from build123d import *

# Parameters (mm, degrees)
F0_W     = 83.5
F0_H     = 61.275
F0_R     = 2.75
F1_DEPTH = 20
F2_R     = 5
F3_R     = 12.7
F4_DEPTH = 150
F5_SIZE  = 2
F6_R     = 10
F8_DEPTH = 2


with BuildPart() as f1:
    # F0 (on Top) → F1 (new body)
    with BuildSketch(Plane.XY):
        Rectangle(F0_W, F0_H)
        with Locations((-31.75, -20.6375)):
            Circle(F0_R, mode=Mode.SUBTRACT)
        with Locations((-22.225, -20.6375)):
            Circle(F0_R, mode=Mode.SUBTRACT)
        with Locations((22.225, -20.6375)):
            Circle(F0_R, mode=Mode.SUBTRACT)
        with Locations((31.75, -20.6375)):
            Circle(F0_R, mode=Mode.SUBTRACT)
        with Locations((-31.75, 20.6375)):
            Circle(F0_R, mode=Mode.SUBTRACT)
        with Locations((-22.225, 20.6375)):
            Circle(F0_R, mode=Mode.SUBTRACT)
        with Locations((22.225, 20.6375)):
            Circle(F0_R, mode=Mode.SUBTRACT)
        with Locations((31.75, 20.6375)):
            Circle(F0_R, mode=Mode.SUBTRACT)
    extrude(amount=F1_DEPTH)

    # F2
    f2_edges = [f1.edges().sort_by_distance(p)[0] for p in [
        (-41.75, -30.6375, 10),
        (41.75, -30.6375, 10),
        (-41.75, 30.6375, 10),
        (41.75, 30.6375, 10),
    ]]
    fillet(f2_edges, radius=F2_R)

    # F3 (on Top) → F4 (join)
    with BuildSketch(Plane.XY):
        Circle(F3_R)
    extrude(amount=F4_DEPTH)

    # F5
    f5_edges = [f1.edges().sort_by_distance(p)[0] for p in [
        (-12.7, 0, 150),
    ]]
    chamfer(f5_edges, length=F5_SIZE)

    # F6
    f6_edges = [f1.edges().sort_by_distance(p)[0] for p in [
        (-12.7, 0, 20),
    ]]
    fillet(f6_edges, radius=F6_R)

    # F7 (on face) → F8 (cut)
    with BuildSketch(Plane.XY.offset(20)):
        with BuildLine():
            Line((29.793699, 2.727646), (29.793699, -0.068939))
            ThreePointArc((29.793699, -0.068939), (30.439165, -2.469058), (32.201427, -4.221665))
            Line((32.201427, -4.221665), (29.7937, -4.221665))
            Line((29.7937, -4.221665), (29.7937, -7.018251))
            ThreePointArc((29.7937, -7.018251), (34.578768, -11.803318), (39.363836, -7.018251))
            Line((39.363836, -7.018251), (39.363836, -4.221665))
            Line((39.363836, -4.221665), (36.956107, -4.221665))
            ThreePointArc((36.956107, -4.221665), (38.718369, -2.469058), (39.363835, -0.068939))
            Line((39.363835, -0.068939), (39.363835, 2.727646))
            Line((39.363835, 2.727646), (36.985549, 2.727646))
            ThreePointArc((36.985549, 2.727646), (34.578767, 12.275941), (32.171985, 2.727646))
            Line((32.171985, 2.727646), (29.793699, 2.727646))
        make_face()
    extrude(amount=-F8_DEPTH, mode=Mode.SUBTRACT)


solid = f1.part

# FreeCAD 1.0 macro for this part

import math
import FreeCAD as App
import Part
import Sketcher

V = App.Vector


def edges_at(feature, points):
    """Names of the edges that pass closest to the given points."""
    edges = feature.Shape.Edges
    near = lambda p: min(range(len(edges)), key=lambda i: edges[i].distToShape(Part.Vertex(*p))[0])
    return sorted({f"Edge{near(p) + 1}" for p in points})

doc = App.newDocument("Part")
body = doc.addObject("PartDesign::Body", "Body")

# Sketch on XY plane
sketch1 = doc.addObject("Sketcher::SketchObject", "Sketch")
body.addObject(sketch1)
sketch1.AttachmentSupport = (doc.XY_Plane, [""])
sketch1.MapMode = "FlatFace"
sketch1.addGeometry([
    Part.LineSegment(V(-41.75, 30.6375, 0), V(-41.75, -30.6375, 0)),  # 0
    Part.LineSegment(V(-41.75, -30.6375, 0), V(41.75, -30.6375, 0)),  # 1
    Part.LineSegment(V(41.75, -30.6375, 0), V(41.75, 30.6375, 0)),  # 2
    Part.LineSegment(V(41.75, 30.6375, 0), V(-41.75, 30.6375, 0)),  # 3
    Part.Circle(V(-31.75, -20.6375, 0), V(0, 0, 1), 2.75),  # 4
    Part.Circle(V(-22.225, -20.6375, 0), V(0, 0, 1), 2.75),  # 5
    Part.Circle(V(22.225, -20.6375, 0), V(0, 0, 1), 2.75),  # 6
    Part.Circle(V(31.75, -20.6375, 0), V(0, 0, 1), 2.75),  # 7
    Part.Circle(V(-31.75, 20.6375, 0), V(0, 0, 1), 2.75),  # 8
    Part.Circle(V(-22.225, 20.6375, 0), V(0, 0, 1), 2.75),  # 9
    Part.Circle(V(22.225, 20.6375, 0), V(0, 0, 1), 2.75),  # 10
    Part.Circle(V(31.75, 20.6375, 0), V(0, 0, 1), 2.75),  # 11
], False)
sketch1.addConstraint([
    Sketcher.Constraint("Coincident", 0, 2, 1, 1),
    Sketcher.Constraint("Coincident", 1, 2, 2, 1),
    Sketcher.Constraint("Coincident", 2, 2, 3, 1),
    Sketcher.Constraint("Coincident", 3, 2, 0, 1),
    Sketcher.Constraint("Vertical", 0),
    Sketcher.Constraint("Horizontal", 1),
    Sketcher.Constraint("Vertical", 2),
    Sketcher.Constraint("Horizontal", 3),
    Sketcher.Constraint("Equal", 4, 5),
    Sketcher.Constraint("Equal", 5, 6),
    Sketcher.Constraint("Equal", 6, 7),
    Sketcher.Constraint("Equal", 7, 8),
    Sketcher.Constraint("Equal", 8, 9),
    Sketcher.Constraint("Equal", 9, 10),
    Sketcher.Constraint("Equal", 10, 11),
    Sketcher.Constraint("Symmetric", 7, 3, 8, 3, -1, 1),
    Sketcher.Constraint("Symmetric", 6, 3, 9, 3, -1, 1),
    Sketcher.Constraint("Symmetric", 5, 3, 10, 3, -1, 1),
    Sketcher.Constraint("Symmetric", 4, 3, 11, 3, -1, 1),
    Sketcher.Constraint("Symmetric", 0, 2, 2, 2, -1, 1),
    Sketcher.Constraint("Symmetric", 5, 3, 6, 3, -2),
    Sketcher.Constraint("Symmetric", 4, 3, 7, 3, -2),
    Sketcher.Constraint("Horizontal", 4, 3, 5, 3),
    Sketcher.Constraint("Diameter", 4, 5.5),
    Sketcher.Constraint("DistanceX", 1, 1, 1, 2, 83.5),
    Sketcher.Constraint("DistanceX", 0, 2, 4, 3, 10.0),
    Sketcher.Constraint("DistanceY", 0, 2, 4, 3, 10.0),
    Sketcher.Constraint("DistanceY", 0, 2, 0, 1, 61.275),
    Sketcher.Constraint("DistanceX", 5, 3, 6, 3, 44.45),
])
pad1 = doc.addObject("PartDesign::Pad", "Pad")
body.addObject(pad1)
pad1.Profile = sketch1
pad1.Length = 20
doc.recompute()

fillet = doc.addObject("PartDesign::Fillet", "Fillet")
body.addObject(fillet)
fillet.Base = (pad1, edges_at(pad1, [
    (-41.75, -30.637, 10),
    (41.75, -30.637, 10),
    (-41.75, 30.637, 10),
    (41.75, 30.637, 10),
]))
fillet.Radius = 5

# Sketch on XY plane
sketch2 = doc.addObject("Sketcher::SketchObject", "Sketch001")
body.addObject(sketch2)
sketch2.AttachmentSupport = (doc.XY_Plane, [""])
sketch2.MapMode = "FlatFace"
sketch2.addGeometry(Part.Circle(V(0, 0, 0), V(0, 0, 1), 12.7), False)
sketch2.addConstraint([
    Sketcher.Constraint("Coincident", 0, 3, -1, 1),
    Sketcher.Constraint("Diameter", 0, 25.4),
])
pad2 = doc.addObject("PartDesign::Pad", "Pad001")
body.addObject(pad2)
pad2.Profile = sketch2
pad2.Length = 150
doc.recompute()

chamfer = doc.addObject("PartDesign::Chamfer", "Chamfer")
body.addObject(chamfer)
chamfer.Base = (pad2, edges_at(pad2, [(-12.7, 0, 150)]))
chamfer.Size = 2
doc.recompute()

fillet2 = doc.addObject("PartDesign::Fillet", "Fillet001")
body.addObject(fillet2)
fillet2.Base = (chamfer, edges_at(chamfer, [(-12.7, 0, 20)]))
fillet2.Radius = 10

# Sketch on XY plane
sketch3 = doc.addObject("Sketcher::SketchObject", "Sketch002")
body.addObject(sketch3)
sketch3.AttachmentSupport = (doc.XY_Plane, [""])
sketch3.MapMode = "FlatFace"
sketch3.AttachmentOffset = App.Placement(V(0, 0, 20), App.Rotation())
sketch3.addGeometry([
    Part.LineSegment(V(29.793699, 2.727646, 0), V(29.793699, -0.068939, 0)),  # 0
    Part.ArcOfCircle(Part.Circle(V(34.578768, -0.068939, 0), V(0, 0, 1), 4.785069), math.radians(-179.999997), math.radians(-119.790153)),  # 1
    Part.LineSegment(V(32.201427, -4.221665, 0), V(29.7937, -4.221665, 0)),  # 2
    Part.LineSegment(V(29.7937, -4.221665, 0), V(29.7937, -7.018251, 0)),  # 3
    Part.ArcOfCircle(Part.Circle(V(34.578768, -7.01825, 0), V(0, 0, 1), 4.785068), math.radians(-179.999988), math.radians(-0.000012)),  # 4
    Part.LineSegment(V(39.363836, -7.018251, 0), V(39.363836, -4.221665, 0)),  # 5
    Part.LineSegment(V(39.363836, -4.221665, 0), V(36.956107, -4.221665, 0)),  # 6
    Part.ArcOfCircle(Part.Circle(V(34.578766, -0.068939, 0), V(0, 0, 1), 4.785069), math.radians(-60.209847), math.radians(-0.000003)),  # 7
    Part.LineSegment(V(39.363835, -0.068939, 0), V(39.363835, 2.727646, 0)),  # 8
    Part.LineSegment(V(39.363835, 2.727646, 0), V(36.985549, 2.727646, 0)),  # 9
    Part.ArcOfCircle(Part.Circle(V(34.578767, 7.198462, 0), V(0, 0, 1), 5.077479), math.radians(-61.705011), math.radians(241.705011)),  # 10
    Part.LineSegment(V(32.171985, 2.727646, 0), V(29.793699, 2.727646, 0)),  # 11
], False)
sketch3.addConstraint([
    Sketcher.Constraint("Tangent", 0, 2, 1, 1),
    Sketcher.Constraint("Coincident", 1, 2, 2, 1),
    Sketcher.Constraint("Coincident", 2, 2, 3, 1),
    Sketcher.Constraint("Tangent", 3, 2, 4, 1),
    Sketcher.Constraint("Tangent", 4, 2, 5, 1),
    Sketcher.Constraint("Coincident", 5, 2, 6, 1),
    Sketcher.Constraint("Coincident", 6, 2, 7, 1),
    Sketcher.Constraint("Tangent", 7, 2, 8, 1),
    Sketcher.Constraint("Coincident", 8, 2, 9, 1),
    Sketcher.Constraint("Coincident", 9, 2, 10, 1),
    Sketcher.Constraint("Coincident", 10, 2, 11, 1),
    Sketcher.Constraint("Coincident", 11, 2, 0, 1),
    Sketcher.Constraint("Vertical", 0),
    Sketcher.Constraint("Horizontal", 2),
    Sketcher.Constraint("Vertical", 3),
    Sketcher.Constraint("Vertical", 5),
    Sketcher.Constraint("Horizontal", 6),
    Sketcher.Constraint("Vertical", 8),
    Sketcher.Constraint("Horizontal", 9),
    Sketcher.Constraint("Horizontal", 11),
    Sketcher.Constraint("Coincident", 7, 3, 1, 3),
    Sketcher.Constraint("Equal", 1, 4),
    Sketcher.Constraint("Equal", 4, 7),
    Sketcher.Constraint("Horizontal", 2, 2, 5, 2),
    Sketcher.Constraint("Horizontal", 9, 2, 10, 2),
    Sketcher.Constraint("Vertical", 1, 3, 4, 3),
    Sketcher.Constraint("Vertical", 7, 3, 10, 3),
    Sketcher.Constraint("Equal", 0, 3),
    Sketcher.Constraint("Radius", 1, 4.785069),
    Sketcher.Constraint("Radius", 10, 5.077479),
    Sketcher.Constraint("DistanceX", 6, 2, 6, 1, 2.407729),
    Sketcher.Constraint("DistanceX", -1, 1, 0, 2, 29.793699),
    Sketcher.Constraint("DistanceY", 1, 3, 10, 3, 7.267401),
    Sketcher.Constraint("DistanceX", 9, 2, 9, 1, 2.378286),
    Sketcher.Constraint("DistanceY", 1, 3, -1, 1, 0.068939),
])
pocket1 = doc.addObject("PartDesign::Pocket", "Pocket")
body.addObject(pocket1)
pocket1.Profile = sketch3
pocket1.Length = 2

doc.recompute()
